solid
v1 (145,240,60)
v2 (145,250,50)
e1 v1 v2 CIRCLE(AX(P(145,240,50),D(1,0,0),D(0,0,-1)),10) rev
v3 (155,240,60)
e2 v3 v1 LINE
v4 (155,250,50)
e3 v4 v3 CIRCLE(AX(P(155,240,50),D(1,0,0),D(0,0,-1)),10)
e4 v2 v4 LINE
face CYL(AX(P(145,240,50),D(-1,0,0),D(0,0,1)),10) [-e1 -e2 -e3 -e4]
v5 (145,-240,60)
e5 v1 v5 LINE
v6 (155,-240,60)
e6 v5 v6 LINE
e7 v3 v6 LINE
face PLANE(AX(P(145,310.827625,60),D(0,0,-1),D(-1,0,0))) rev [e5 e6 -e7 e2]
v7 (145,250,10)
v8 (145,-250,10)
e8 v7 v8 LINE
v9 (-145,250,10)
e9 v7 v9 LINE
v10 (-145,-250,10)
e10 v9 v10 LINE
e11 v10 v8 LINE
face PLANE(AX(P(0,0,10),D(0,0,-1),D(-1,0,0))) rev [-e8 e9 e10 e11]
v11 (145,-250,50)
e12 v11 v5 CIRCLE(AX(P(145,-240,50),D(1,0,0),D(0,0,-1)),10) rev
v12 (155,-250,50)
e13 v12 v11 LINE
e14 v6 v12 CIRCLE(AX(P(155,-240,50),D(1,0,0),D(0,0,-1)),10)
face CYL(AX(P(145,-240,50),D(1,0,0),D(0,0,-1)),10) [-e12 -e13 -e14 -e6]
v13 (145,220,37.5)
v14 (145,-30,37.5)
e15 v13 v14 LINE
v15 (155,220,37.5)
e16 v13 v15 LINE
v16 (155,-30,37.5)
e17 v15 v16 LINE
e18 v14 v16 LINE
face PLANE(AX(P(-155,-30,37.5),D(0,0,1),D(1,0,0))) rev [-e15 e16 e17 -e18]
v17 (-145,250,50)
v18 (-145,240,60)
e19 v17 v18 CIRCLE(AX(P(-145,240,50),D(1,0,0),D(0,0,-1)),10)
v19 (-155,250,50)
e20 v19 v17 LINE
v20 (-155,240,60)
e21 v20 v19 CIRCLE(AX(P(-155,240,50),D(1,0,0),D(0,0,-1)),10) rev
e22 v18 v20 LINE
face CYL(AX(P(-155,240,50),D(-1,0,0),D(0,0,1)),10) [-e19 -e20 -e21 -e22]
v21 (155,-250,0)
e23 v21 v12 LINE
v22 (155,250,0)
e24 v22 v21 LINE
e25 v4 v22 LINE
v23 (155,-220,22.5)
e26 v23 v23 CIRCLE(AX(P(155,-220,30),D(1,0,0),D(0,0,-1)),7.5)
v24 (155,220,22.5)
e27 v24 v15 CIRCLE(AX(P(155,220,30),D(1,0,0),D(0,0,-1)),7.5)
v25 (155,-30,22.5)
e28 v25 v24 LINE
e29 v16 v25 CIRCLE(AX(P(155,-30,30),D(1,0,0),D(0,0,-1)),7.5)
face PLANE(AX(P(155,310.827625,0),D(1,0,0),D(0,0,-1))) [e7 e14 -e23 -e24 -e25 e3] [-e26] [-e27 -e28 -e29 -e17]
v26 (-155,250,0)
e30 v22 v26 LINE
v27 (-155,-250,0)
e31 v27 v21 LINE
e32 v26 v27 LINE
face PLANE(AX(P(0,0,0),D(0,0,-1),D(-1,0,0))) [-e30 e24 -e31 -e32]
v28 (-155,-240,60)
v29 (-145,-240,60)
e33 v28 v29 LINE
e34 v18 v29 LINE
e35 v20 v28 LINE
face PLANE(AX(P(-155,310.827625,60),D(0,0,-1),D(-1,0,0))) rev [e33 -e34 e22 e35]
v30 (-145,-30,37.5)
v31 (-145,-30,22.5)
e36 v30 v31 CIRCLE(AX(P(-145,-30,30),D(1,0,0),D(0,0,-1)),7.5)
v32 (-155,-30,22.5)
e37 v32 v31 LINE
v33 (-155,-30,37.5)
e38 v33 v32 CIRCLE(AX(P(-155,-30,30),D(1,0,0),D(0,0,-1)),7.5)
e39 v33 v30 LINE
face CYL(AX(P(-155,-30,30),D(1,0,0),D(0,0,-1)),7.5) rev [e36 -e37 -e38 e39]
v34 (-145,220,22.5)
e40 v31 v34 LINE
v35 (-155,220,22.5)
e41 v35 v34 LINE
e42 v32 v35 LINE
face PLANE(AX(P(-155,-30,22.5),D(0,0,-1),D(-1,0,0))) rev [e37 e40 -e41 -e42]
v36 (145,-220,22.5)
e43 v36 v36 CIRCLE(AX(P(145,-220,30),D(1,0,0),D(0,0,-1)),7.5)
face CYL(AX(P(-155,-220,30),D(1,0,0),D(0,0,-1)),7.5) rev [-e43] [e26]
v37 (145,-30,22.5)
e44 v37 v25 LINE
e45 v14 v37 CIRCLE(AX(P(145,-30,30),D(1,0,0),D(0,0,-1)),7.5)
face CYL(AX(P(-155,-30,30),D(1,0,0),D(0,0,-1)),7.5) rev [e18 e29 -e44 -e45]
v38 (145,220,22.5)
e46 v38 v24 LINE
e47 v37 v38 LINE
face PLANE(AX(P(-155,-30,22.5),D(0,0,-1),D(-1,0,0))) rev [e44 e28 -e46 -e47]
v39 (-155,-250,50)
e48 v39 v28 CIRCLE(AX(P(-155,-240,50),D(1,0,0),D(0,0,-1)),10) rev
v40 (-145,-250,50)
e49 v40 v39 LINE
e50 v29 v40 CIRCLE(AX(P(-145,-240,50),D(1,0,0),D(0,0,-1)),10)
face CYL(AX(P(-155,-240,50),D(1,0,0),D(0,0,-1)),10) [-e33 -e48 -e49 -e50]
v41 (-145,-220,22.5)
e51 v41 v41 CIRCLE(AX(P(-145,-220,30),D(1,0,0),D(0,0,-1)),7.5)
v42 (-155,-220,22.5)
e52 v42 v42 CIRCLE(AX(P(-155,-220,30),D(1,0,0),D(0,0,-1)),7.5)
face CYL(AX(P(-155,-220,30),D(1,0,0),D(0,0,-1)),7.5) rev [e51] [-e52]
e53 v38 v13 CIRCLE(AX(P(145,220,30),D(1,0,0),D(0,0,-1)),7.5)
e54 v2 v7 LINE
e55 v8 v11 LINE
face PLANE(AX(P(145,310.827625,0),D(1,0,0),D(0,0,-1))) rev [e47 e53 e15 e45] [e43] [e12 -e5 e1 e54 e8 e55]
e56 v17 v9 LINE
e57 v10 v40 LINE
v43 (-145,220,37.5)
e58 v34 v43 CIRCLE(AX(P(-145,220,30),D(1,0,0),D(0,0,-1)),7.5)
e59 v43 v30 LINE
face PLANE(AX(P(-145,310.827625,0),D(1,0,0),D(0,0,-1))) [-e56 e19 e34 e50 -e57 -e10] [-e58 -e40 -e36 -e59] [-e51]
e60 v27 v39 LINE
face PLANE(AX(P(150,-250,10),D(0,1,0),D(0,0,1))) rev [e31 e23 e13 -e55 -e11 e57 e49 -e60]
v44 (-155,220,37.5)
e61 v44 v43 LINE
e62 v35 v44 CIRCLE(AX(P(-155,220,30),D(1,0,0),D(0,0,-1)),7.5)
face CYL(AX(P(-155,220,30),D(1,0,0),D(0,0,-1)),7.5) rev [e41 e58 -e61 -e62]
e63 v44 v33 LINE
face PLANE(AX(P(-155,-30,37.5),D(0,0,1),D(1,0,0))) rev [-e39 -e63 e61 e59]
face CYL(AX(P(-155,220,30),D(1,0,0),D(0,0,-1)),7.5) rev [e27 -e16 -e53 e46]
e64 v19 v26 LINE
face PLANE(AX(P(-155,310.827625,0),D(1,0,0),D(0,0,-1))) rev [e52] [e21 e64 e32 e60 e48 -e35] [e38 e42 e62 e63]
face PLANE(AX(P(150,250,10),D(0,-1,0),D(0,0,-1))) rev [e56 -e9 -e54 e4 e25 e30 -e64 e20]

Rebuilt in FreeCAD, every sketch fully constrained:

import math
import FreeCAD as App
import Part
import Sketcher

V = App.Vector


def edges_at(feature, points):
    """Names of the edges that pass closest to the given points."""
    edges = feature.Shape.Edges
    near = lambda p: min(range(len(edges)), key=lambda i: edges[i].distToShape(Part.Vertex(*p))[0])
    return sorted({f"Edge{near(p) + 1}" for p in points})


def add_polygon(sketch, points):
    """Adds a closed chain of lines whose ends are joined by coincident constraints."""
    first, n = sketch.GeometryCount, len(points)
    for a, b in zip(points, points[1:] + points[:1]):
        sketch.addGeometry(Part.LineSegment(App.Vector(*a, 0), App.Vector(*b, 0)), False)
    for i in range(n):
        sketch.addConstraint(Sketcher.Constraint("Coincident", first + i, 2, first + (i + 1) % n, 1))

doc = App.newDocument("Part")
params = doc.addObject("Spreadsheet::Sheet", "Params")
for row, (alias, value) in enumerate([
    ("sketch1_width", "300 mm"),
    ("sketch1_height", "500 mm"),
    ("pad1_length", "10 mm"),
    ("sketch2_width", "10 mm"),
    ("sketch2_height", "60 mm"),
    ("pad2_length", "500 mm"),
    ("sketch3_diameter", "15 mm"),
    ("sketch3_width", "250 mm"),
    ("fillet_radius", "10 mm"),
], start=1):
    params.set(f"A{row}", alias)
    params.set(f"B{row}", "=" + value)
    params.setAlias(f"B{row}", alias)

body = doc.addObject("PartDesign::Body", "Body")

sketch1 = body.newObject("Sketcher::SketchObject", "Sketch")
sketch1.AttachmentSupport = (doc.getObject("XY_Plane"), [""])
sketch1.MapMode = "FlatFace"
add_polygon(sketch1, [(-150, -250), (150, -250), (150, 250), (-150, 250)])
sketch1.addConstraint(Sketcher.Constraint("Horizontal", 0))
sketch1.addConstraint(Sketcher.Constraint("Vertical", 1))
sketch1.addConstraint(Sketcher.Constraint("Horizontal", 2))
sketch1.addConstraint(Sketcher.Constraint("Vertical", 3))
sketch1.addConstraint(Sketcher.Constraint("Symmetric", 0, 2, 2, 2, -1, 1))
sketch1.addConstraint(Sketcher.Constraint("DistanceX", 0, 1, 0, 2, 300.0))
sketch1.addConstraint(Sketcher.Constraint("DistanceY", 1, 1, 1, 2, 500.0))
sketch1.setExpression("Constraints[9]", "Params.sketch1_width")
sketch1.setExpression("Constraints[10]", "Params.sketch1_height")
pad1 = body.newObject("PartDesign::Pad", "Pad")
pad1.Profile = sketch1
pad1.setExpression("Length", "Params.pad1_length")

sketch2 = body.newObject("Sketcher::SketchObject", "Sketch001")
sketch2.AttachmentSupport = (doc.getObject("XZ_Plane"), [""])
sketch2.MapMode = "FlatFace"
sketch2.AttachmentOffset = App.Placement(V(0, 0, 250), App.Rotation())
add_polygon(sketch2, [(-155, 60), (-155, 0), (-145, 0), (-145, 60)])
add_polygon(sketch2, [(145, 60), (145, 0), (155, 0), (155, 60)])
sketch2.addConstraint(Sketcher.Constraint("Vertical", 0))
sketch2.addConstraint(Sketcher.Constraint("Horizontal", 1))
sketch2.addConstraint(Sketcher.Constraint("Vertical", 2))
sketch2.addConstraint(Sketcher.Constraint("Horizontal", 3))
sketch2.addConstraint(Sketcher.Constraint("Vertical", 4))
sketch2.addConstraint(Sketcher.Constraint("Horizontal", 5))
sketch2.addConstraint(Sketcher.Constraint("Vertical", 6))
sketch2.addConstraint(Sketcher.Constraint("Horizontal", 7))
sketch2.addConstraint(Sketcher.Constraint("Symmetric", 1, 2, 4, 2, -1, 1))
sketch2.addConstraint(Sketcher.Constraint("Symmetric", 0, 2, 5, 2, -2))
sketch2.addConstraint(Sketcher.Constraint("Horizontal", 3, 2, 6, 2))
sketch2.addConstraint(Sketcher.Constraint("DistanceX", 1, 1, 1, 2, 10.0))
sketch2.addConstraint(Sketcher.Constraint("DistanceY", 0, 2, 0, 1, 60.0))
sketch2.addConstraint(Sketcher.Constraint("DistanceX", 0, 2, -1, 1, 155.0))
sketch2.setExpression("Constraints[19]", "Params.sketch2_width")
sketch2.setExpression("Constraints[20]", "Params.sketch2_height")
pad2 = body.newObject("PartDesign::Pad", "Pad001")
pad2.Profile = sketch2
pad2.setExpression("Length", "Params.pad2_length")
pad2.Reversed = True

sketch3 = body.newObject("Sketcher::SketchObject", "Sketch002")
sketch3.AttachmentSupport = (doc.getObject("YZ_Plane"), [""])
sketch3.MapMode = "FlatFace"
sketch3.AttachmentOffset = App.Placement(V(0, 0, 155), App.Rotation())
sketch3.addGeometry(Part.Circle(V(-220, 30, 0), V(0, 0, 1), 8), False)
sketch3.addGeometry(Part.LineSegment(V(220, 38, 0), V(-30, 38, 0)), False)
sketch3.addGeometry(Part.ArcOfCircle(Part.Circle(V(-30, 30, 0), V(0, 0, 1), 8), math.radians(90), math.radians(270)), False)
sketch3.addGeometry(Part.LineSegment(V(-30, 22, 0), V(220, 22, 0)), False)
sketch3.addGeometry(Part.ArcOfCircle(Part.Circle(V(220, 30, 0), V(0, 0, 1), 8), math.radians(-90), math.radians(90)), False)
sketch3.addConstraint(Sketcher.Constraint("Tangent", 1, 2, 2, 1))
sketch3.addConstraint(Sketcher.Constraint("Tangent", 2, 2, 3, 1))
sketch3.addConstraint(Sketcher.Constraint("Tangent", 3, 2, 4, 1))
sketch3.addConstraint(Sketcher.Constraint("Tangent", 4, 2, 1, 1))
sketch3.addConstraint(Sketcher.Constraint("Horizontal", 1))
sketch3.addConstraint(Sketcher.Constraint("Horizontal", 3))
sketch3.addConstraint(Sketcher.Constraint("Equal", 0, 2))
sketch3.addConstraint(Sketcher.Constraint("Symmetric", 0, 3, 4, 3, -2))
sketch3.addConstraint(Sketcher.Constraint("Diameter", 0, 15.0))
sketch3.addConstraint(Sketcher.Constraint("DistanceX", 1, 2, 1, 1, 250.0))
sketch3.addConstraint(Sketcher.Constraint("DistanceX", 0, 3, -1, 1, 220.0))
sketch3.addConstraint(Sketcher.Constraint("DistanceY", -1, 1, 0, 3, 30.0))
sketch3.setExpression("Constraints[8]", "Params.sketch3_diameter")
sketch3.setExpression("Constraints[9]", "Params.sketch3_width")
pocket1 = body.newObject("PartDesign::Pocket", "Pocket")
pocket1.Profile = sketch3
pocket1.Type = "ThroughAll"
doc.recompute()

fillet = body.newObject("PartDesign::Fillet", "Fillet")
fillet.Base = (pocket1, edges_at(pocket1, [
    (-150, 250, 60),
    (-150, -250, 60),
    (150, 250, 60),
    (150, -250, 60),
]))
fillet.setExpression("Radius", "Params.fillet_radius")

doc.recompute()
